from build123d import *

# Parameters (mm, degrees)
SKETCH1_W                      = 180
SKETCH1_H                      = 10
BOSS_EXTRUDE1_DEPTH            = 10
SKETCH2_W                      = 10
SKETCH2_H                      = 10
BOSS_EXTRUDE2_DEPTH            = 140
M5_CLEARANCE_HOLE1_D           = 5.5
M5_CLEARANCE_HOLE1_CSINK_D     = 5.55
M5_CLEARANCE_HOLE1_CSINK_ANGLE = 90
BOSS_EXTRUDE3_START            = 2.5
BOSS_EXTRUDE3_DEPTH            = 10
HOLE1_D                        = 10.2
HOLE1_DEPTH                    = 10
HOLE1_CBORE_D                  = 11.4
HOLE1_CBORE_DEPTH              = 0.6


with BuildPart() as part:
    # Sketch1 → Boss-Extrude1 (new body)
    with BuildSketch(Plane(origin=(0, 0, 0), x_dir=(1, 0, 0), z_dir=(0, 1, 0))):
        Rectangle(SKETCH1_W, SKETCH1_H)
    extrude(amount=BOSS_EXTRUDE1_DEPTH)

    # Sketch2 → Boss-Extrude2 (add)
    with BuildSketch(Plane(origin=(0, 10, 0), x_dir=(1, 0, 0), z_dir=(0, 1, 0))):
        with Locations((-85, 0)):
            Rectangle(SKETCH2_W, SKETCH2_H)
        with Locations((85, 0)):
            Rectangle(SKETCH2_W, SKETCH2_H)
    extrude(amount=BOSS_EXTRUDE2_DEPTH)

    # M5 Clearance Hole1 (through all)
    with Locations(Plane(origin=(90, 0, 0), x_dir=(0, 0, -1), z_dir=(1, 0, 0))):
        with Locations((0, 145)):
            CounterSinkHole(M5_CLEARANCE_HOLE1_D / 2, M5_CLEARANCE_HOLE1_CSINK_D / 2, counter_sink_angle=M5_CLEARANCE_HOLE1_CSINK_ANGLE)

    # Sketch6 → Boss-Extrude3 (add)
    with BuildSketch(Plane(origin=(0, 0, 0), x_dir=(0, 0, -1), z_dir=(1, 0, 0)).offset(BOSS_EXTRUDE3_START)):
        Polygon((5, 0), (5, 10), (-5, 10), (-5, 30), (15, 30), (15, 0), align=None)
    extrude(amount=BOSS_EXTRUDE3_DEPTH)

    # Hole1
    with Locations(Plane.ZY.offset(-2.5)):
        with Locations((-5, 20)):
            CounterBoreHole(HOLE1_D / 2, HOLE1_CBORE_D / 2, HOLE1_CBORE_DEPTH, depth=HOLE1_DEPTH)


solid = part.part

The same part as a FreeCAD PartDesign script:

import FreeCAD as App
import Part
import Sketcher

V = App.Vector

doc = App.newDocument("Part")
body = doc.addObject("PartDesign::Body", "Body")

sketch1 = doc.addObject("Sketcher::SketchObject", "Sketch")
body.addObject(sketch1)
sketch1.AttachmentSupport = (doc.XZ_Plane, [""])
sketch1.MapMode = "FlatFace"
sketch1.addGeometry([
    Part.LineSegment(V(-90, -5, 0), V(-90, 5, 0)),
    Part.LineSegment(V(-90, 5, 0), V(90, 5, 0)),
    Part.LineSegment(V(90, 5, 0), V(90, -5, 0)),
    Part.LineSegment(V(90, -5, 0), V(-90, -5, 0)),
], False)
sketch1.addConstraint([
    Sketcher.Constraint("Coincident", 0, 2, 1, 1),
    Sketcher.Constraint("Coincident", 1, 2, 2, 1),
    Sketcher.Constraint("Coincident", 2, 2, 3, 1),
    Sketcher.Constraint("Coincident", 3, 2, 0, 1),
    Sketcher.Constraint("Vertical", 0),
    Sketcher.Constraint("Horizontal", 1),
    Sketcher.Constraint("Vertical", 2),
    Sketcher.Constraint("Horizontal", 3),
    Sketcher.Constraint("Symmetric", 0, 2, 2, 2, -1, 1),
    Sketcher.Constraint("DistanceX", 1, 1, 1, 2, 180.0),
    Sketcher.Constraint("DistanceY", 0, 1, 0, 2, 10.0),
])
pad1 = doc.addObject("PartDesign::Pad", "Pad")
body.addObject(pad1)
pad1.Profile = sketch1
pad1.Length = 10
pad1.Reversed = True

sketch2 = doc.addObject("Sketcher::SketchObject", "Sketch001")
body.addObject(sketch2)
sketch2.AttachmentSupport = (doc.XZ_Plane, [""])
sketch2.MapMode = "FlatFace"
sketch2.AttachmentOffset = App.Placement(V(0, 0, -10), App.Rotation())
sketch2.addGeometry([
    Part.LineSegment(V(-90, -5, 0), V(-90, 5, 0)),
    Part.LineSegment(V(-90, 5, 0), V(-80, 5, 0)),
    Part.LineSegment(V(-80, 5, 0), V(-80, -5, 0)),
    Part.LineSegment(V(-80, -5, 0), V(-90, -5, 0)),
    Part.LineSegment(V(80, -5, 0), V(80, 5, 0)),
    Part.LineSegment(V(80, 5, 0), V(90, 5, 0)),
    Part.LineSegment(V(90, 5, 0), V(90, -5, 0)),
    Part.LineSegment(V(90, -5, 0), V(80, -5, 0)),
], False)
sketch2.addConstraint([
    Sketcher.Constraint("Coincident", 0, 2, 1, 1),
    Sketcher.Constraint("Coincident", 1, 2, 2, 1),
    Sketcher.Constraint("Coincident", 2, 2, 3, 1),
    Sketcher.Constraint("Coincident", 3, 2, 0, 1),
    Sketcher.Constraint("Coincident", 4, 2, 5, 1),
    Sketcher.Constraint("Coincident", 5, 2, 6, 1),
    Sketcher.Constraint("Coincident", 6, 2, 7, 1),
    Sketcher.Constraint("Coincident", 7, 2, 4, 1),
    Sketcher.Constraint("Vertical", 0),
    Sketcher.Constraint("Horizontal", 1),
    Sketcher.Constraint("Vertical", 2),
    Sketcher.Constraint("Horizontal", 3),
    Sketcher.Constraint("Vertical", 4),
    Sketcher.Constraint("Horizontal", 5),
    Sketcher.Constraint("Vertical", 6),
    Sketcher.Constraint("Horizontal", 7),
    Sketcher.Constraint("Symmetric", 2, 2, 4, 2, -1, 1),
    Sketcher.Constraint("Symmetric", 0, 2, 6, 2, -1, 1),
    Sketcher.Constraint("Horizontal", 1, 2, 4, 2),
    Sketcher.Constraint("Equal", 7, 0),
    Sketcher.Constraint("DistanceX", 1, 1, 1, 2, 10.0),
    Sketcher.Constraint("DistanceX", 0, 2, -1, 1, 90.0),
])
pad2 = doc.addObject("PartDesign::Pad", "Pad001")
body.addObject(pad2)
pad2.Profile = sketch2
pad2.Length = 140
pad2.Reversed = True

sketch3 = doc.addObject("Sketcher::SketchObject", "Sketch002")
body.addObject(sketch3)
sketch3.AttachmentSupport = (doc.YZ_Plane, [""])
sketch3.MapMode = "FlatFace"
sketch3.AttachmentOffset = App.Placement(V(0, 0, 90), App.Rotation())
sketch3.addGeometry(Part.Circle(V(145, 0, 0), V(0, 0, 1), 2.75), False)
sketch3.addConstraint([
    Sketcher.Constraint("PointOnObject", 0, 3, -1),
    Sketcher.Constraint("Diameter", 0, 5.5),
    Sketcher.Constraint("DistanceX", -1, 1, 0, 3, 145.0),
])
doc.recompute()
hole = doc.addObject("PartDesign::Hole", "Hole")
body.addObject(hole)
hole.Profile = sketch3
hole.ThreadType = "None"
hole.Diameter = 5.5
hole.DepthType = "ThroughAll"
hole.HoleCutType = "Countersink"
hole.HoleCutDiameter = 5.55
hole.HoleCutCountersinkAngle = 90

sketch4 = doc.addObject("Sketcher::SketchObject", "Sketch003")
body.addObject(sketch4)
sketch4.AttachmentSupport = (doc.YZ_Plane, [""])
sketch4.MapMode = "FlatFace"
sketch4.AttachmentOffset = App.Placement(V(0, 0, 2.5), App.Rotation())
sketch4.addGeometry([
    Part.LineSegment(V(10, -5, 0), V(0, -5, 0)),
    Part.LineSegment(V(0, -5, 0), V(0, -15, 0)),
    Part.LineSegment(V(0, -15, 0), V(30, -15, 0)),
    Part.LineSegment(V(30, -15, 0), V(30, 5, 0)),
    Part.LineSegment(V(30, 5, 0), V(10, 5, 0)),
    Part.LineSegment(V(10, 5, 0), V(10, -5, 0)),
], False)
sketch4.addConstraint([
    Sketcher.Constraint("Coincident", 0, 2, 1, 1),
    Sketcher.Constraint("Coincident", 1, 2, 2, 1),
    Sketcher.Constraint("Coincident", 2, 2, 3, 1),
    Sketcher.Constraint("Coincident", 3, 2, 4, 1),
    Sketcher.Constraint("Coincident", 4, 2, 5, 1),
    Sketcher.Constraint("Coincident", 5, 2, 0, 1),
    Sketcher.Constraint("Horizontal", 0),
    Sketcher.Constraint("Vertical", 1),
    Sketcher.Constraint("Horizontal", 2),
    Sketcher.Constraint("Vertical", 3),
    Sketcher.Constraint("Horizontal", 4),
    Sketcher.Constraint("Vertical", 5),
    Sketcher.Constraint("PointOnObject", 0, 2, -2),
    Sketcher.Constraint("Equal", 0, 1),
    Sketcher.Constraint("Equal", 4, 3),
    Sketcher.Constraint("Equal", 1, 5),
    Sketcher.Constraint("DistanceX", 0, 2, 0, 1, 10.0),
    Sketcher.Constraint("DistanceY", 0, 2, -1, 1, 5.0),
])
pad3 = doc.addObject("PartDesign::Pad", "Pad002")
body.addObject(pad3)
pad3.Profile = sketch4
pad3.Length = 10

sketch5 = doc.addObject("Sketcher::SketchObject", "Sketch004")
body.addObject(sketch5)
sketch5.AttachmentSupport = (doc.YZ_Plane, [""])
sketch5.MapMode = "FlatFace"
sketch5.AttachmentOffset = App.Placement(V(0, 0, 2.5), App.Rotation())
sketch5.addGeometry(Part.Circle(V(20, -5, 0), V(0, 0, 1), 5.1), False)
sketch5.addConstraint([
    Sketcher.Constraint("Diameter", 0, 10.2),
    Sketcher.Constraint("DistanceX", -1, 1, 0, 3, 20.0),
    Sketcher.Constraint("DistanceY", 0, 3, -1, 1, 5.0),
])
doc.recompute()
hole2 = doc.addObject("PartDesign::Hole", "Hole001")
body.addObject(hole2)
hole2.Profile = sketch5
hole2.ThreadType = "None"
hole2.Diameter = 10.2
hole2.DepthType = "Dimension"
hole2.Depth = 10
hole2.DrillPoint = "Flat"
hole2.HoleCutType = "Counterbore"
hole2.HoleCutDiameter = 11.4
hole2.HoleCutDepth = 0.6
hole2.Reversed = True

doc.recompute()
